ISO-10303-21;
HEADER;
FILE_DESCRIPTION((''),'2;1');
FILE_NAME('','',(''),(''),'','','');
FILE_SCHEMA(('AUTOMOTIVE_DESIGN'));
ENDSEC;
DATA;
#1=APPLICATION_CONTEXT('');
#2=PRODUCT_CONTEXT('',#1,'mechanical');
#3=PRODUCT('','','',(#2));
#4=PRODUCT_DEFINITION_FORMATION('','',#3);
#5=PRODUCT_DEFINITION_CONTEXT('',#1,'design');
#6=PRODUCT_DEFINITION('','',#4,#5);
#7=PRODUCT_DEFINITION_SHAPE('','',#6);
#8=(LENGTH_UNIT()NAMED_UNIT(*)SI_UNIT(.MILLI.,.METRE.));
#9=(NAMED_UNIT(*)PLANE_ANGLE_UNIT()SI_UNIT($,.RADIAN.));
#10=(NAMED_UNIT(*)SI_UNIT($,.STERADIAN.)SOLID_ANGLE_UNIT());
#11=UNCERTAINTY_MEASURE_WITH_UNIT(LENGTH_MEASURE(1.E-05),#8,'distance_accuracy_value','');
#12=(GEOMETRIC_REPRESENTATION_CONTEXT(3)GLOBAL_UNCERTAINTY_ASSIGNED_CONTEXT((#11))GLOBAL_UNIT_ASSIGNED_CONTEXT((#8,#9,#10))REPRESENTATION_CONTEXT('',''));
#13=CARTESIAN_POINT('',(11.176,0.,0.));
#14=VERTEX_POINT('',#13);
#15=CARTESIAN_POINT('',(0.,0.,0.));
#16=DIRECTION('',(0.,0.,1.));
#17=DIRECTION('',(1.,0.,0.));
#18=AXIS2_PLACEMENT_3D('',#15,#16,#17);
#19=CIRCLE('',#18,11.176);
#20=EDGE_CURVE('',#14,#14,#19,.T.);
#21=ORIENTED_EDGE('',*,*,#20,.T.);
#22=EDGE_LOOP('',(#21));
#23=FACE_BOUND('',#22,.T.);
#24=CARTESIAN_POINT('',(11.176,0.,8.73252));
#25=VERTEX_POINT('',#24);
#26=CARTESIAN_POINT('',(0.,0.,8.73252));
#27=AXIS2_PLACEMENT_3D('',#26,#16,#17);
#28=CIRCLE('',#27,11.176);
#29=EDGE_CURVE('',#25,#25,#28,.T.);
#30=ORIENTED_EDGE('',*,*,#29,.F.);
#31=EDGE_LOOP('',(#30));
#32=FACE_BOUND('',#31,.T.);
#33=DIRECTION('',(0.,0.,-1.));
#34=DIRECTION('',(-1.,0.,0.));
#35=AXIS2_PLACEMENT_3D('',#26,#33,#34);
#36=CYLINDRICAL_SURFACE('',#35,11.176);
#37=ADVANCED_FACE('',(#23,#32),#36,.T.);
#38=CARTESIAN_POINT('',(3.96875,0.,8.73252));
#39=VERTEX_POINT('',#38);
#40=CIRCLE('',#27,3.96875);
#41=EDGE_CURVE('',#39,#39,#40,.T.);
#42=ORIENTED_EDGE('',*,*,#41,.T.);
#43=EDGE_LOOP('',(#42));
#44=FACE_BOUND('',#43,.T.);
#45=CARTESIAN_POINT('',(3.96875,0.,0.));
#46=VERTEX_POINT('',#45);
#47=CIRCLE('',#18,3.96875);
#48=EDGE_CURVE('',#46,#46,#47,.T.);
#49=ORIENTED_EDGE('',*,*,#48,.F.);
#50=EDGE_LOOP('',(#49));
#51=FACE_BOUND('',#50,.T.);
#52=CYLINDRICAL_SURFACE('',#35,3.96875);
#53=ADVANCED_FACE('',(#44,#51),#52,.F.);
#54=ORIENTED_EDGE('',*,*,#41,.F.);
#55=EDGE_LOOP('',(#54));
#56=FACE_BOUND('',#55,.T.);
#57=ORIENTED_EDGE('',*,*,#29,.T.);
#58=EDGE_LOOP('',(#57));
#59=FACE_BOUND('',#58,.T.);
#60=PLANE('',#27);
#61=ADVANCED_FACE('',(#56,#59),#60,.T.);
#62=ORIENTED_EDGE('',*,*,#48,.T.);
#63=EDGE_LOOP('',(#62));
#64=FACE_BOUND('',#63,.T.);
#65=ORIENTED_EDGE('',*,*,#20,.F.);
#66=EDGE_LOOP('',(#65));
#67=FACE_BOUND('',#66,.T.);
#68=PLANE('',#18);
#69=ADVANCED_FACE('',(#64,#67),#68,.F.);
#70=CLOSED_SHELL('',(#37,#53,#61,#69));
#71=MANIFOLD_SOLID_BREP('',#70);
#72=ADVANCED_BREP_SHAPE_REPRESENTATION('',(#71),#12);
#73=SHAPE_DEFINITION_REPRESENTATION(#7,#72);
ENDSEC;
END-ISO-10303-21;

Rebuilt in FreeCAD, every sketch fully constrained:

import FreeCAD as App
import Part
import Sketcher
Q = App.Units.Quantity

doc = App.newDocument("Part")
params = doc.addObject("Spreadsheet::Sheet", "Params")
for row, (alias, value) in enumerate([
    ("sketch1_diameter", "0.88 in"),
    ("sketch1_diameter2", "0.3125 in"),
    ("pad1_length", "0.3438 in"),
], start=1):
    params.set(f"A{row}", alias)
    params.set(f"B{row}", "=" + value)
    params.setAlias(f"B{row}", alias)

body = doc.addObject("PartDesign::Body", "Body")

sketch1 = body.newObject("Sketcher::SketchObject", "Sketch")
sketch1.AttachmentSupport = (doc.getObject("XY_Plane"), [""])
sketch1.MapMode = "FlatFace"
sketch1.addGeometry(Part.Circle(App.Vector(0, 0, 0), App.Vector(0, 0, 1), 11.2), False)
sketch1.addGeometry(Part.Circle(App.Vector(0, 0, 0), App.Vector(0, 0, 1), 4), False)
sketch1.addConstraint(Sketcher.Constraint("Coincident", 0, 3, -1, 1))
sketch1.addConstraint(Sketcher.Constraint("Coincident", 1, 3, -1, 1))
sketch1.addConstraint(Sketcher.Constraint("Diameter", 0, Q("0.88 in")))
sketch1.addConstraint(Sketcher.Constraint("Diameter", 1, Q("0.3125 in")))
sketch1.setExpression("Constraints[2]", "Params.sketch1_diameter")
sketch1.setExpression("Constraints[3]", "Params.sketch1_diameter2")
pad1 = body.newObject("PartDesign::Pad", "Pad")
pad1.Profile = sketch1
pad1.setExpression("Length", "Params.pad1_length")

doc.recompute()
